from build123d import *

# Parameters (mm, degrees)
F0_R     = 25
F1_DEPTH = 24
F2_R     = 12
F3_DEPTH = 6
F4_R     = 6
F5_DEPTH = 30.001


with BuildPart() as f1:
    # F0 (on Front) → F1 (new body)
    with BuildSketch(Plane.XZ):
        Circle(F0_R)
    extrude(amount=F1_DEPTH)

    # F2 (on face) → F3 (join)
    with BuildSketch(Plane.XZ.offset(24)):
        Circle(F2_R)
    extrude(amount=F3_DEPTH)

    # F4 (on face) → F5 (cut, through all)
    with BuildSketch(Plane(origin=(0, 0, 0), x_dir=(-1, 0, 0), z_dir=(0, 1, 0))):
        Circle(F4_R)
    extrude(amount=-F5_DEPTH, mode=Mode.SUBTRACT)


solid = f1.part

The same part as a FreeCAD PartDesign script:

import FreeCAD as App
import Part
import Sketcher
from FreeCAD import Vector
Q = App.Units.Quantity

doc = App.newDocument("Part")
body = doc.addObject("PartDesign::Body", "Body")

# Sketch on XZ plane
sketch1 = body.newObject("Sketcher::SketchObject", "Sketch")
sketch1.AttachmentSupport = (doc.getObject("XZ_Plane"), [""])
sketch1.MapMode = "FlatFace"
sketch1.addGeometry(Part.Circle(Vector(0, 0, 0), Vector(0, 0, 1), 25), False)
sketch1.addConstraint([
    Sketcher.Constraint("Coincident", 0, 3, -1, 1),
    Sketcher.Constraint("Diameter", 0, Q("50 mm")),
])
pad1 = body.newObject("PartDesign::Pad", "Pad")
pad1.Profile = sketch1
pad1.Length = 24

# Sketch on XZ plane
sketch2 = body.newObject("Sketcher::SketchObject", "Sketch001")
sketch2.AttachmentSupport = (doc.getObject("XZ_Plane"), [""])
sketch2.MapMode = "FlatFace"
sketch2.AttachmentOffset = App.Placement(Vector(0, 0, 24), App.Rotation())
sketch2.addGeometry(Part.Circle(Vector(0, 0, 0), Vector(0, 0, 1), 12), False)
sketch2.addConstraint([
    Sketcher.Constraint("Coincident", 0, 3, -1, 1),
    Sketcher.Constraint("Diameter", 0, Q("24 mm")),
])
pad2 = body.newObject("PartDesign::Pad", "Pad001")
pad2.Profile = sketch2
pad2.Length = 6

# Sketch on XZ plane
sketch3 = body.newObject("Sketcher::SketchObject", "Sketch002")
sketch3.AttachmentSupport = (doc.getObject("XZ_Plane"), [""])
sketch3.MapMode = "FlatFace"
sketch3.addGeometry(Part.Circle(Vector(0, 0, 0), Vector(0, 0, 1), 6), False)
sketch3.addConstraint([
    Sketcher.Constraint("Coincident", 0, 3, -1, 1),
    Sketcher.Constraint("Diameter", 0, Q("12 mm")),
])
pocket1 = body.newObject("PartDesign::Pocket", "Pocket")
pocket1.Profile = sketch3
pocket1.Type = "ThroughAll"
pocket1.Reversed = True

doc.recompute()
